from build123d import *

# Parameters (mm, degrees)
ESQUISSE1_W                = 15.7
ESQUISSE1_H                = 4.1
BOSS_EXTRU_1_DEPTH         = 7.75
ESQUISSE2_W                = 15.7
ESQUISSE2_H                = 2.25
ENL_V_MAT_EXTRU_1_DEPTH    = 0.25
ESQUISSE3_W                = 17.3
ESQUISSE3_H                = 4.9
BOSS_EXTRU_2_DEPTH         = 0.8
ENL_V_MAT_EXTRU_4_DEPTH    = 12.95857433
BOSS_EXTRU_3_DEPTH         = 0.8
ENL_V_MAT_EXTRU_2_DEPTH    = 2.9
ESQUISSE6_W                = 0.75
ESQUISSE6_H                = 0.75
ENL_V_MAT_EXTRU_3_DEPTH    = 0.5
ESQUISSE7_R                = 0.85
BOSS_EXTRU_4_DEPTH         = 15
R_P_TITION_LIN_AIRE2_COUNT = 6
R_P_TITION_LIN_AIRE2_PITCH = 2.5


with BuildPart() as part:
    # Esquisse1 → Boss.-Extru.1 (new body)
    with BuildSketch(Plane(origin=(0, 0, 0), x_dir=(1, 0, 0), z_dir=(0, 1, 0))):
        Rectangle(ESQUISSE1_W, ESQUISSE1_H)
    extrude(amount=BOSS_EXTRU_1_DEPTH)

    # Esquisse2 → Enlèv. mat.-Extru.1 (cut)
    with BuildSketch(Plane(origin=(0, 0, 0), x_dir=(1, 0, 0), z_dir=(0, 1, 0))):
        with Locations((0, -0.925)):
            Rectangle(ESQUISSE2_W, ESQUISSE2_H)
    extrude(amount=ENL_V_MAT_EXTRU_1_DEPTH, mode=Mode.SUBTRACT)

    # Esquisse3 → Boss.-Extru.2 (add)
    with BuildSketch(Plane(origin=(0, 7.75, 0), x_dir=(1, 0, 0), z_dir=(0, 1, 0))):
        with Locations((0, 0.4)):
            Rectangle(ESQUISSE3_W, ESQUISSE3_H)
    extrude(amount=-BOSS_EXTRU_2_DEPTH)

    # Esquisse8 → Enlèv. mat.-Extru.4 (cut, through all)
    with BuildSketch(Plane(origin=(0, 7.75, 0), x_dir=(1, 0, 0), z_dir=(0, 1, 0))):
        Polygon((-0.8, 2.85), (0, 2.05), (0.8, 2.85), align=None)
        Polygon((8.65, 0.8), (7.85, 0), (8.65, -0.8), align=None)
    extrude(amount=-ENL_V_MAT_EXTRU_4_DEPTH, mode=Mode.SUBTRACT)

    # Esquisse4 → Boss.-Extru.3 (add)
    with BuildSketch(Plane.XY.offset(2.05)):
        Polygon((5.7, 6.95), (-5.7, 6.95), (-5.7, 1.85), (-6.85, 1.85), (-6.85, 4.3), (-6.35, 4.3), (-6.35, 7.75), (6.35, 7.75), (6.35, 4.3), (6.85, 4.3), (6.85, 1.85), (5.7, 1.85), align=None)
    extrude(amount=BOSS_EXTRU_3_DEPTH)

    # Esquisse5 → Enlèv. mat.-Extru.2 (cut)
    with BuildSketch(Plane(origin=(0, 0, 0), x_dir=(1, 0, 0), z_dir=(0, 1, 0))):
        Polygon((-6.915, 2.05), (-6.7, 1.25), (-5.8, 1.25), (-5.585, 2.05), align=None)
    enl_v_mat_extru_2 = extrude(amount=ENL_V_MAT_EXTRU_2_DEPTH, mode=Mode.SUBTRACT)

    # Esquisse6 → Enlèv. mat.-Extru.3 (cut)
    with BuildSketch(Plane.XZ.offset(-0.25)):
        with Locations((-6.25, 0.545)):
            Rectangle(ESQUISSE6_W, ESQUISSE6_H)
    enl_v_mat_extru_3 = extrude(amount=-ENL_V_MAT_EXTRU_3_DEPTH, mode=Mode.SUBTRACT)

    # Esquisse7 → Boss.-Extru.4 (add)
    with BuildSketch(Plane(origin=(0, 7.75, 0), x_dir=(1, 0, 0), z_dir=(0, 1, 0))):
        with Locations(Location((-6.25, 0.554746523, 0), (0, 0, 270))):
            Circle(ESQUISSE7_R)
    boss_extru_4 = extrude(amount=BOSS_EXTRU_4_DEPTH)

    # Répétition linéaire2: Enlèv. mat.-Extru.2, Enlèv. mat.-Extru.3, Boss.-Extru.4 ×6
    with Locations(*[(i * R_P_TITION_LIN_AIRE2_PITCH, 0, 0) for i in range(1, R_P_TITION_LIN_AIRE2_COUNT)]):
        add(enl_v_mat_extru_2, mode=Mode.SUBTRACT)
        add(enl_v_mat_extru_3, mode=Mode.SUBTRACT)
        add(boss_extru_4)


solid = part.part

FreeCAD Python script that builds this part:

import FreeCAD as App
import Part
import Sketcher
Q = App.Units.Quantity


def add_polygon(sketch, points):
    """Adds a closed chain of lines whose ends are joined by coincident constraints."""
    first, n = sketch.GeometryCount, len(points)
    for a, b in zip(points, points[1:] + points[:1]):
        sketch.addGeometry(Part.LineSegment(App.Vector(*a, 0), App.Vector(*b, 0)), False)
    for i in range(n):
        sketch.addConstraint(Sketcher.Constraint("Coincident", first + i, 2, first + (i + 1) % n, 1))

doc = App.newDocument("Part")
body = doc.addObject("PartDesign::Body", "Body")

# Sketch on XZ plane
sketch1 = body.newObject("Sketcher::SketchObject", "Sketch")
sketch1.AttachmentSupport = (doc.getObject("XZ_Plane"), [""])
sketch1.MapMode = "FlatFace"
add_polygon(sketch1, [(-7.8, -2), (-7.8, 2), (7.8, 2), (7.8, -2)])  # lines 0-3
sketch1.addConstraint(Sketcher.Constraint("Vertical", 0))
sketch1.addConstraint(Sketcher.Constraint("Horizontal", 1))
sketch1.addConstraint(Sketcher.Constraint("Vertical", 2))
sketch1.addConstraint(Sketcher.Constraint("Horizontal", 3))
sketch1.addConstraint(Sketcher.Constraint("Symmetric", 0, 2, 2, 2, -1, 1))
sketch1.addConstraint(Sketcher.Constraint("DistanceX", 1, 1, 1, 2, Q("15.7 mm")))
sketch1.addConstraint(Sketcher.Constraint("DistanceY", 0, 1, 0, 2, Q("4.1 mm")))
pad1 = body.newObject("PartDesign::Pad", "Pad")
pad1.Profile = sketch1
pad1.Length = 7.75
pad1.Reversed = True

# Sketch on XZ plane
sketch2 = body.newObject("Sketcher::SketchObject", "Sketch001")
sketch2.AttachmentSupport = (doc.getObject("XZ_Plane"), [""])
sketch2.MapMode = "FlatFace"
add_polygon(sketch2, [(-7.8, -0.2), (-7.8, 2), (7.8, 2), (7.8, -0.2)])  # lines 0-3
sketch2.addConstraint(Sketcher.Constraint("Vertical", 0))
sketch2.addConstraint(Sketcher.Constraint("Horizontal", 1))
sketch2.addConstraint(Sketcher.Constraint("Vertical", 2))
sketch2.addConstraint(Sketcher.Constraint("Horizontal", 3))
sketch2.addConstraint(Sketcher.Constraint("DistanceX", 1, 1, 1, 2, Q("15.7 mm")))
sketch2.addConstraint(Sketcher.Constraint("DistanceY", 0, 1, 0, 2, Q("2.25 mm")))
sketch2.addConstraint(Sketcher.Constraint("DistanceY", 2, 2, -1, 1, Q("0.2 mm")))
sketch2.addConstraint(Sketcher.Constraint("DistanceX", 0, 2, -1, 1, Q("7.85 mm")))
pocket1 = body.newObject("PartDesign::Pocket", "Pocket")
pocket1.Profile = sketch2
pocket1.Length = 0.25

# Sketch on XZ plane
sketch3 = body.newObject("Sketcher::SketchObject", "Sketch002")
sketch3.AttachmentSupport = (doc.getObject("XZ_Plane"), [""])
sketch3.MapMode = "FlatFace"
sketch3.AttachmentOffset = App.Placement(App.Vector(0, 0, -7.75), App.Rotation())
add_polygon(sketch3, [(-8.7, -2.9), (-8.7, 2), (8.7, 2), (8.7, -2.9)])  # lines 0-3
sketch3.addConstraint(Sketcher.Constraint("Vertical", 0))
sketch3.addConstraint(Sketcher.Constraint("Horizontal", 1))
sketch3.addConstraint(Sketcher.Constraint("Vertical", 2))
sketch3.addConstraint(Sketcher.Constraint("Horizontal", 3))
sketch3.addConstraint(Sketcher.Constraint("DistanceX", 1, 1, 1, 2, Q("17.3 mm")))
sketch3.addConstraint(Sketcher.Constraint("DistanceY", 0, 1, 0, 2, Q("4.9 mm")))
sketch3.addConstraint(Sketcher.Constraint("DistanceX", 0, 2, -1, 1, Q("8.65 mm")))
sketch3.addConstraint(Sketcher.Constraint("DistanceY", -1, 1, 0, 2, Q("2.05 mm")))
pad2 = body.newObject("PartDesign::Pad", "Pad001")
pad2.Profile = sketch3
pad2.Length = 0.8

# Sketch on XZ plane
sketch4 = body.newObject("Sketcher::SketchObject", "Sketch003")
sketch4.AttachmentSupport = (doc.getObject("XZ_Plane"), [""])
sketch4.MapMode = "FlatFace"
sketch4.AttachmentOffset = App.Placement(App.Vector(0, 0, -7.75), App.Rotation())
add_polygon(sketch4, [(-0.8, -2.9), (0, -2), (0.8, -2.9)])  # lines 0-2
add_polygon(sketch4, [(8.7, -0.8), (7.8, 0), (8.7, 0.8)])  # lines 3-5
sketch4.addConstraint(Sketcher.Constraint("Horizontal", 2))
sketch4.addConstraint(Sketcher.Constraint("Vertical", 5))
sketch4.addConstraint(Sketcher.Constraint("PointOnObject", 0, 2, -2))
sketch4.addConstraint(Sketcher.Constraint("PointOnObject", 3, 2, -1))
sketch4.addConstraint(Sketcher.Constraint("Perpendicular", 0, 1))
sketch4.addConstraint(Sketcher.Constraint("Parallel", 1, 3))
sketch4.addConstraint(Sketcher.Constraint("Perpendicular", 3, 4))
sketch4.addConstraint(Sketcher.Constraint("Equal", 2, 5))
sketch4.addConstraint(Sketcher.Constraint("Equal", 0, 1))
sketch4.addConstraint(Sketcher.Constraint("DistanceX", 2, 2, 2, 1, Q("1.6 mm")))
sketch4.addConstraint(Sketcher.Constraint("DistanceY", 0, 2, -1, 1, Q("2.05 mm")))
sketch4.addConstraint(Sketcher.Constraint("DistanceX", -1, 1, 3, 2, Q("7.85 mm")))
pocket2 = body.newObject("PartDesign::Pocket", "Pocket001")
pocket2.Profile = sketch4
pocket2.Type = "ThroughAll"
pocket2.Reversed = True

# Sketch on XY plane
sketch5 = body.newObject("Sketcher::SketchObject", "Sketch004")
sketch5.AttachmentSupport = (doc.getObject("XY_Plane"), [""])
sketch5.MapMode = "FlatFace"
sketch5.AttachmentOffset = App.Placement(App.Vector(0, 0, 2.05), App.Rotation())
add_polygon(sketch5, [(-5.7, 7), (5.7, 7), (5.7, 1.9), (6.8, 1.9), (6.8, 4.3), (6.3, 4.3), (6.3, 7.8), (-6.3, 7.8), (-6.3, 4.3), (-6.8, 4.3), (-6.8, 1.9), (-5.7, 1.9)])  # lines 0-11
sketch5.addConstraint(Sketcher.Constraint("Horizontal", 0))
sketch5.addConstraint(Sketcher.Constraint("Vertical", 1))
sketch5.addConstraint(Sketcher.Constraint("Horizontal", 2))
sketch5.addConstraint(Sketcher.Constraint("Vertical", 3))
sketch5.addConstraint(Sketcher.Constraint("Horizontal", 4))
sketch5.addConstraint(Sketcher.Constraint("Vertical", 5))
sketch5.addConstraint(Sketcher.Constraint("Horizontal", 6))
sketch5.addConstraint(Sketcher.Constraint("Vertical", 7))
sketch5.addConstraint(Sketcher.Constraint("Horizontal", 8))
sketch5.addConstraint(Sketcher.Constraint("Vertical", 9))
sketch5.addConstraint(Sketcher.Constraint("Horizontal", 10))
sketch5.addConstraint(Sketcher.Constraint("Vertical", 11))
sketch5.addConstraint(Sketcher.Constraint("Symmetric", 4, 2, 7, 2, -2))
sketch5.addConstraint(Sketcher.Constraint("Symmetric", 2, 2, 9, 2, -2))
sketch5.addConstraint(Sketcher.Constraint("Equal", 2, 10))
sketch5.addConstraint(Sketcher.Constraint("DistanceX", 0, 1, 0, 2, Q("11.4 mm")))
sketch5.addConstraint(Sketcher.Constraint("DistanceX", 4, 2, 4, 1, Q("0.5 mm")))
sketch5.addConstraint(Sketcher.Constraint("DistanceX", 6, 2, 6, 1, Q("12.7 mm")))
sketch5.addConstraint(Sketcher.Constraint("DistanceY", 1, 2, 1, 1, Q("5.1 mm")))
sketch5.addConstraint(Sketcher.Constraint("DistanceY", 3, 1, 3, 2, Q("2.45 mm")))
sketch5.addConstraint(Sketcher.Constraint("DistanceY", 5, 1, 5, 2, Q("3.45 mm")))
sketch5.addConstraint(Sketcher.Constraint("DistanceY", -1, 1, 3, 2, Q("4.3 mm")))
pad3 = body.newObject("PartDesign::Pad", "Pad002")
pad3.Profile = sketch5
pad3.Length = 0.8

# Sketch on XZ plane
sketch6 = body.newObject("Sketcher::SketchObject", "Sketch005")
sketch6.AttachmentSupport = (doc.getObject("XZ_Plane"), [""])
sketch6.MapMode = "FlatFace"
add_polygon(sketch6, [(-6.9, -2), (-6.7, -1.2), (-5.8, -1.2), (-5.6, -2)])  # lines 0-3
sketch6.addConstraint(Sketcher.Constraint("Horizontal", 1))
sketch6.addConstraint(Sketcher.Constraint("Horizontal", 3))
sketch6.addConstraint(Sketcher.Constraint("Equal", 0, 2))
sketch6.addConstraint(Sketcher.Constraint("DistanceX", 1, 1, 1, 2, Q("0.9 mm")))
sketch6.addConstraint(Sketcher.Constraint("DistanceX", 3, 2, 3, 1, Q("1.33 mm")))
sketch6.addConstraint(Sketcher.Constraint("DistanceX", 0, 2, -1, 1, Q("6.7 mm")))
sketch6.addConstraint(Sketcher.Constraint("DistanceY", 2, 2, 1, 2, Q("0.8 mm")))
sketch6.addConstraint(Sketcher.Constraint("DistanceY", 0, 2, -1, 1, Q("1.25 mm")))
pocket3 = body.newObject("PartDesign::Pocket", "Pocket002")
pocket3.Profile = sketch6
pocket3.Length = 2.9

# Sketch on XZ plane
sketch7 = body.newObject("Sketcher::SketchObject", "Sketch006")
sketch7.AttachmentSupport = (doc.getObject("XZ_Plane"), [""])
sketch7.MapMode = "FlatFace"
sketch7.AttachmentOffset = App.Placement(App.Vector(0, 0, -0.25), App.Rotation())
add_polygon(sketch7, [(-6.6, 0.9), (-6.6, 0.2), (-5.9, 0.2), (-5.9, 0.9)])  # lines 0-3
sketch7.addConstraint(Sketcher.Constraint("Vertical", 0))
sketch7.addConstraint(Sketcher.Constraint("Horizontal", 1))
sketch7.addConstraint(Sketcher.Constraint("Vertical", 2))
sketch7.addConstraint(Sketcher.Constraint("Horizontal", 3))
sketch7.addConstraint(Sketcher.Constraint("Equal", 3, 0))
sketch7.addConstraint(Sketcher.Constraint("DistanceX", 1, 1, 1, 2, Q("0.75 mm")))
sketch7.addConstraint(Sketcher.Constraint("DistanceY", -1, 1, 0, 2, Q("0.17 mm")))
sketch7.addConstraint(Sketcher.Constraint("DistanceX", 0, 2, -1, 1, Q("6.625 mm")))
pocket4 = body.newObject("PartDesign::Pocket", "Pocket003")
pocket4.Profile = sketch7
pocket4.Length = 0.5

# Sketch on XZ plane
sketch8 = body.newObject("Sketcher::SketchObject", "Sketch007")
sketch8.AttachmentSupport = (doc.getObject("XZ_Plane"), [""])
sketch8.MapMode = "FlatFace"
sketch8.AttachmentOffset = App.Placement(App.Vector(0, 0, -7.75), App.Rotation())
sketch8.addGeometry(Part.Circle(App.Vector(-6.2, -0.6, 0), App.Vector(0, 0, 1), 0.8), False)
sketch8.addConstraint(Sketcher.Constraint("Diameter", 0, Q("1.7 mm")))
sketch8.addConstraint(Sketcher.Constraint("DistanceX", 0, 3, -1, 1, Q("6.25 mm")))
sketch8.addConstraint(Sketcher.Constraint("DistanceY", 0, 3, -1, 1, Q("0.554747 mm")))
pad4 = body.newObject("PartDesign::Pad", "Pad003")
pad4.Profile = sketch8
pad4.Length = 15
pad4.Reversed = True
doc.recompute()

linearpattern = body.newObject("PartDesign::LinearPattern", "LinearPattern")
linearpattern.Originals = [pocket3, pocket4, pad4]
linearpattern.Direction = (doc.getObject("X_Axis"), [""])
linearpattern.Mode = "offset"
linearpattern.Offset = 2.5
linearpattern.Occurrences = 6
body.Tip = linearpattern

doc.recompute()
